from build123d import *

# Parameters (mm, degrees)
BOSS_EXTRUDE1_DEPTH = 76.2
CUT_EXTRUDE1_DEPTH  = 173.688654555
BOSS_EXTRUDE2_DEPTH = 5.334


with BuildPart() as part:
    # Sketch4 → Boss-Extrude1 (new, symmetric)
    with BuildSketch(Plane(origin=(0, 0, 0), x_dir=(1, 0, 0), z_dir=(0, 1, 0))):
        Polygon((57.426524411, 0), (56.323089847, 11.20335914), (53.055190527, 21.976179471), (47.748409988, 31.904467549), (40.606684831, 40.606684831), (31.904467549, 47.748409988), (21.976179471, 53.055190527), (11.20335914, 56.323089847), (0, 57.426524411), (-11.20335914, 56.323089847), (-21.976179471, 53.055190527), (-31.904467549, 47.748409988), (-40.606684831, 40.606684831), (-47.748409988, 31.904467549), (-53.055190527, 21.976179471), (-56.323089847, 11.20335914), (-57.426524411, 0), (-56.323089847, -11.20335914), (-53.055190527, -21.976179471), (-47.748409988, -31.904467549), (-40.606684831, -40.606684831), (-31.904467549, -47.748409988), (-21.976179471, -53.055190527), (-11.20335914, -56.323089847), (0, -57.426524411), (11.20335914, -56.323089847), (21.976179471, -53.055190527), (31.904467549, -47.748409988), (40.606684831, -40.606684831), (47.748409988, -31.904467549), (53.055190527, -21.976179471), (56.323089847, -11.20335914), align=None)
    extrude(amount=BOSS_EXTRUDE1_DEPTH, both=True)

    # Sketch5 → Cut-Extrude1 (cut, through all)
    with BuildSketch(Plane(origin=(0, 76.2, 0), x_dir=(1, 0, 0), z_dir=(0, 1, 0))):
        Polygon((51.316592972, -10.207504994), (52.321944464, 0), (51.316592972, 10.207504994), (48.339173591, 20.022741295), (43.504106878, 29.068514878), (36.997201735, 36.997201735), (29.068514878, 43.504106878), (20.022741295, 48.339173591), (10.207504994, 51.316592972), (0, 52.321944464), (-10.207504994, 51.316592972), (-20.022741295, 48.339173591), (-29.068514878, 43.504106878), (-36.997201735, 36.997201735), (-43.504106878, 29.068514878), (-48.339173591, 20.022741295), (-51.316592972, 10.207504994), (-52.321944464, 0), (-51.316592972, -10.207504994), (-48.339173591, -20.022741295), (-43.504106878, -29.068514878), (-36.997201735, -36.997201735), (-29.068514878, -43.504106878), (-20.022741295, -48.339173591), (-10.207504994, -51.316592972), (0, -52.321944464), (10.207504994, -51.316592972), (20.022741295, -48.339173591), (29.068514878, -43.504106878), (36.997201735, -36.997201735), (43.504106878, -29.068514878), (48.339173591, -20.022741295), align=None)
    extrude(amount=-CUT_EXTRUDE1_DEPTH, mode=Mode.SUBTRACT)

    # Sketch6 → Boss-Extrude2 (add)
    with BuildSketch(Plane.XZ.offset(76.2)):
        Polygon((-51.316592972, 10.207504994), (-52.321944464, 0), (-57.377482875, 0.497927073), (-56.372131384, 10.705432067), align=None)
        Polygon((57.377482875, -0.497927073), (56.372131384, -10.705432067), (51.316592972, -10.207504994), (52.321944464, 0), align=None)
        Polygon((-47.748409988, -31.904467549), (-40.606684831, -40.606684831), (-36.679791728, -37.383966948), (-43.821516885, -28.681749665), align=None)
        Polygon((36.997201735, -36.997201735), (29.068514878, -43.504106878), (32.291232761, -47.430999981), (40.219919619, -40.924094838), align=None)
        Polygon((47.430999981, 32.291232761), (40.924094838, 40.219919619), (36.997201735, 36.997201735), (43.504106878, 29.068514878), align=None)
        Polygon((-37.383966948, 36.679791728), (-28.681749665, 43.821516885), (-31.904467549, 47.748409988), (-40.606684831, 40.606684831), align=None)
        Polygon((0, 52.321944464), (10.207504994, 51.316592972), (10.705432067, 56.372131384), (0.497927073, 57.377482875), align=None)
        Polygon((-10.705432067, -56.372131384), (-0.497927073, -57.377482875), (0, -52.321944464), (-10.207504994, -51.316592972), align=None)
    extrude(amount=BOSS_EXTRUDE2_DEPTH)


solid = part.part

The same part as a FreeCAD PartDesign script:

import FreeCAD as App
import Part
import Sketcher
Q = App.Units.Quantity


def add_polygon(sketch, points):
    """Adds a closed chain of lines whose ends are joined by coincident constraints."""
    first, n = sketch.GeometryCount, len(points)
    for a, b in zip(points, points[1:] + points[:1]):
        sketch.addGeometry(Part.LineSegment(App.Vector(*a, 0), App.Vector(*b, 0)), False)
    for i in range(n):
        sketch.addConstraint(Sketcher.Constraint("Coincident", first + i, 2, first + (i + 1) % n, 1))

doc = App.newDocument("Part")
params = doc.addObject("Spreadsheet::Sheet", "Params")
for row, (alias, value) in enumerate([
    ("pad1_length", "6 in"),
    ("sketch3_length", "0.2 in"),
    ("pad2_length", "0.21 in"),
], start=1):
    params.set(f"A{row}", alias)
    params.set(f"B{row}", "=" + value)
    params.setAlias(f"B{row}", alias)

body = doc.addObject("PartDesign::Body", "Body")

# Sketch on XZ plane
sketch1 = doc.addObject("Sketcher::SketchObject", "Sketch")
body.addObject(sketch1)
sketch1.AttachmentSupport = (doc.XZ_Plane, [""])
sketch1.MapMode = "FlatFace"
add_polygon(sketch1, [(57, 0), (56, -11), (53, -22), (48, -32), (41, -41), (32, -48), (22, -53), (11, -56), (0, -57), (-11, -56), (-22, -53), (-32, -48), (-41, -41), (-48, -32), (-53, -22), (-56, -11), (-57, 0), (-56, 11), (-53, 22), (-48, 32), (-41, 41), (-32, 48), (-22, 53), (-11, 56), (0, 57), (11, 56), (22, 53), (32, 48), (41, 41), (48, 32), (53, 22), (56, 11)])  # lines 0-31
sketch1.addConstraint([
    Sketcher.Constraint("Symmetric", 0, 2, 16, 2, -1, 1),
    Sketcher.Constraint("Symmetric", 1, 2, 17, 2, -1, 1),
    Sketcher.Constraint("Symmetric", 2, 2, 18, 2, -1, 1),
    Sketcher.Constraint("Symmetric", 3, 2, 19, 2, -1, 1),
    Sketcher.Constraint("Symmetric", 4, 2, 20, 2, -1, 1),
    Sketcher.Constraint("Symmetric", 5, 2, 21, 2, -1, 1),
    Sketcher.Constraint("Symmetric", 6, 2, 22, 2, -1, 1),
    Sketcher.Constraint("Symmetric", 7, 2, 23, 2, -1, 1),
    Sketcher.Constraint("Symmetric", 8, 2, 24, 2, -1, 1),
    Sketcher.Constraint("Symmetric", 9, 2, 25, 2, -1, 1),
    Sketcher.Constraint("Symmetric", 10, 2, 26, 2, -1, 1),
    Sketcher.Constraint("Symmetric", 11, 2, 27, 2, -1, 1),
    Sketcher.Constraint("Symmetric", 12, 2, 28, 2, -1, 1),
    Sketcher.Constraint("Symmetric", 13, 2, 29, 2, -1, 1),
    Sketcher.Constraint("Symmetric", 14, 2, 30, 2, -1, 1),
    Sketcher.Constraint("Symmetric", 15, 2, 31, 2, -1, 1),
    Sketcher.Constraint("Symmetric", 6, 2, 8, 2, -2),
    Sketcher.Constraint("Symmetric", 5, 2, 9, 2, -2),
    Sketcher.Constraint("Symmetric", 4, 2, 10, 2, -2),
    Sketcher.Constraint("Symmetric", 3, 2, 11, 2, -2),
    Sketcher.Constraint("Symmetric", 2, 2, 12, 2, -2),
    Sketcher.Constraint("Symmetric", 1, 2, 13, 2, -2),
    Sketcher.Constraint("Symmetric", 0, 2, 14, 2, -2),
    Sketcher.Constraint("PointOnObject", 7, 2, -2),
    Sketcher.Constraint("PointOnObject", 15, 2, -1),
    Sketcher.Constraint("Perpendicular", 0, 8),
    Sketcher.Constraint("Perpendicular", 1, 9),
    Sketcher.Constraint("Perpendicular", 2, 10),
    Sketcher.Constraint("Perpendicular", 3, 11),
    Sketcher.Constraint("Equal", 0, 1),
    Sketcher.Constraint("Equal", 1, 2),
    Sketcher.Constraint("Equal", 2, 3),
    Sketcher.Constraint("Equal", 3, 4),
    Sketcher.Constraint("Equal", 4, 5),
    Sketcher.Constraint("Equal", 5, 6),
    Sketcher.Constraint("Equal", 6, 7),
    Sketcher.Constraint("DistanceX", 1, 2, 0, 2, 3.267899),
    Sketcher.Constraint("DistanceX", -1, 1, 0, 2, 56.32309),
    Sketcher.Constraint("DistanceY", 0, 2, -1, 1, 11.203359),
    Sketcher.Constraint("DistanceY", 1, 2, -1, 1, 21.976179),
    Sketcher.Constraint("DistanceX", -1, 1, 2, 2, 47.74841),
])
pad1 = doc.addObject("PartDesign::Pad", "Pad")
body.addObject(pad1)
pad1.Profile = sketch1
pad1.setExpression("Length", "Params.pad1_length")
pad1.Midplane = True

# Sketch on XZ plane
sketch2 = doc.addObject("Sketcher::SketchObject", "Sketch001")
body.addObject(sketch2)
sketch2.AttachmentSupport = (doc.XZ_Plane, [""])
sketch2.MapMode = "FlatFace"
sketch2.AttachmentOffset = App.Placement(App.Vector(0, 0, -3 * 25.4), App.Rotation())
add_polygon(sketch2, [(51, 10), (52, 0), (51, -10), (48, -20), (44, -29), (37, -37), (29, -44), (20, -48), (10, -51), (0, -52), (-10, -51), (-20, -48), (-29, -44), (-37, -37), (-44, -29), (-48, -20), (-51, -10), (-52, 0), (-51, 10), (-48, 20), (-44, 29), (-37, 37), (-29, 44), (-20, 48), (-10, 51), (0, 52), (10, 51), (20, 48), (29, 44), (37, 37), (44, 29), (48, 20)])  # lines 0-31
sketch2.addConstraint([
    Sketcher.Constraint("Symmetric", 0, 2, 16, 2, -1, 1),
    Sketcher.Constraint("Symmetric", 1, 2, 17, 2, -1, 1),
    Sketcher.Constraint("Symmetric", 2, 2, 18, 2, -1, 1),
    Sketcher.Constraint("Symmetric", 3, 2, 19, 2, -1, 1),
    Sketcher.Constraint("Symmetric", 4, 2, 20, 2, -1, 1),
    Sketcher.Constraint("Symmetric", 5, 2, 21, 2, -1, 1),
    Sketcher.Constraint("Symmetric", 6, 2, 22, 2, -1, 1),
    Sketcher.Constraint("Symmetric", 7, 2, 23, 2, -1, 1),
    Sketcher.Constraint("Symmetric", 8, 2, 24, 2, -1, 1),
    Sketcher.Constraint("Symmetric", 9, 2, 25, 2, -1, 1),
    Sketcher.Constraint("Symmetric", 10, 2, 26, 2, -1, 1),
    Sketcher.Constraint("Symmetric", 11, 2, 27, 2, -1, 1),
    Sketcher.Constraint("Symmetric", 12, 2, 28, 2, -1, 1),
    Sketcher.Constraint("Symmetric", 13, 2, 29, 2, -1, 1),
    Sketcher.Constraint("Symmetric", 14, 2, 30, 2, -1, 1),
    Sketcher.Constraint("Symmetric", 15, 2, 31, 2, -1, 1),
    Sketcher.Constraint("Symmetric", 7, 2, 9, 2, -2),
    Sketcher.Constraint("Symmetric", 6, 2, 10, 2, -2),
    Sketcher.Constraint("Symmetric", 5, 2, 11, 2, -2),
    Sketcher.Constraint("Symmetric", 4, 2, 12, 2, -2),
    Sketcher.Constraint("Symmetric", 3, 2, 13, 2, -2),
    Sketcher.Constraint("Symmetric", 2, 2, 14, 2, -2),
    Sketcher.Constraint("Symmetric", 1, 2, 15, 2, -2),
    Sketcher.Constraint("PointOnObject", 0, 2, -1),
    Sketcher.Constraint("PointOnObject", 8, 2, -2),
    Sketcher.Constraint("Perpendicular", 0, 8),
    Sketcher.Constraint("Perpendicular", 2, 10),
    Sketcher.Constraint("Perpendicular", 3, 11),
    Sketcher.Constraint("Perpendicular", 4, 12),
    Sketcher.Constraint("Equal", 1, 2),
    Sketcher.Constraint("Equal", 2, 3),
    Sketcher.Constraint("Equal", 3, 4),
    Sketcher.Constraint("Equal", 4, 5),
    Sketcher.Constraint("Equal", 5, 6),
    Sketcher.Constraint("Equal", 6, 7),
    Sketcher.Constraint("Equal", 7, 8),
    Sketcher.Constraint("DistanceX", 9, 2, 5, 2, Q("1.5463 in")),
    Sketcher.Constraint("DistanceX", -1, 1, 4, 2, 36.997202),
    Sketcher.Constraint("DistanceY", 5, 2, 1, 2, 33.296602),
    Sketcher.Constraint("DistanceY", 2, 2, -1, 1, 20.022741),
    Sketcher.Constraint("DistanceX", 1, 2, 0, 2, 1.005351),
])
pocket1 = doc.addObject("PartDesign::Pocket", "Pocket")
body.addObject(pocket1)
pocket1.Profile = sketch2
pocket1.Type = "ThroughAll"
pocket1.Reversed = True

# Sketch on XZ plane
sketch3 = doc.addObject("Sketcher::SketchObject", "Sketch002")
body.addObject(sketch3)
sketch3.AttachmentSupport = (doc.XZ_Plane, [""])
sketch3.MapMode = "FlatFace"
sketch3.AttachmentOffset = App.Placement(App.Vector(0, 0, 3 * 25.4), App.Rotation())
add_polygon(sketch3, [(-52, 0), (-51, 10), (-56, 11), (-57, 0)])  # lines 0-3
add_polygon(sketch3, [(56, -11), (57, 0), (52, 0), (51, -10)])  # lines 4-7
add_polygon(sketch3, [(-48, -32), (-41, -41), (-37, -37), (-44, -29)])  # lines 8-11
add_polygon(sketch3, [(37, -37), (29, -44), (32, -47), (40, -41)])  # lines 12-15
add_polygon(sketch3, [(47, 32), (41, 40), (37, 37), (44, 29)])  # lines 16-19
add_polygon(sketch3, [(-37, 37), (-29, 44), (-32, 48), (-41, 41)])  # lines 20-23
add_polygon(sketch3, [(0, 52), (10, 51), (11, 56), (0, 57)])  # lines 24-27
add_polygon(sketch3, [(-11, -56), (0, -57), (0, -52), (-10, -51)])  # lines 28-31
sketch3.addConstraint([
    Sketcher.Constraint("Symmetric", 2, 2, 4, 2, -1, 1),
    Sketcher.Constraint("Symmetric", 3, 2, 5, 2, -1, 1),
    Sketcher.Constraint("Symmetric", 0, 2, 6, 2, -1, 1),
    Sketcher.Constraint("Symmetric", 1, 2, 7, 2, -1, 1),
    Sketcher.Constraint("Symmetric", 26, 2, 28, 2, -1, 1),
    Sketcher.Constraint("Symmetric", 27, 2, 29, 2, -1, 1),
    Sketcher.Constraint("Symmetric", 24, 2, 30, 2, -1, 1),
    Sketcher.Constraint("Symmetric", 25, 2, 31, 2, -1, 1),
    Sketcher.Constraint("Symmetric", 15, 2, 17, 2, -1),
    Sketcher.Constraint("Symmetric", 8, 2, 22, 2, -1),
    Sketcher.Constraint("PointOnObject", 3, 2, -1),
    Sketcher.Constraint("PointOnObject", 27, 2, -2),
    Sketcher.Constraint("Perpendicular", 0, 1),
    Sketcher.Constraint("Perpendicular", 1, 2),
    Sketcher.Constraint("Perpendicular", 2, 3),
    Sketcher.Constraint("Perpendicular", 8, 9),
    Sketcher.Constraint("Perpendicular", 9, 10),
    Sketcher.Constraint("Perpendicular", 10, 11),
    Sketcher.Constraint("Parallel", 11, 12),
    Sketcher.Constraint("Perpendicular", 12, 13),
    Sketcher.Constraint("Perpendicular", 13, 14),
    Sketcher.Constraint("Perpendicular", 14, 15),
    Sketcher.Constraint("Parallel", 15, 16),
    Sketcher.Constraint("Perpendicular", 16, 17),
    Sketcher.Constraint("Perpendicular", 17, 18),
    Sketcher.Constraint("Perpendicular", 18, 19),
    Sketcher.Constraint("Parallel", 19, 20),
    Sketcher.Constraint("Perpendicular", 20, 21),
    Sketcher.Constraint("Perpendicular", 21, 22),
    Sketcher.Constraint("Perpendicular", 22, 23),
    Sketcher.Constraint("Parallel", 7, 24),
    Sketcher.Constraint("Perpendicular", 24, 25),
    Sketcher.Constraint("Perpendicular", 25, 26),
    Sketcher.Constraint("Perpendicular", 26, 27),
    Sketcher.Constraint("Equal", 7, 9),
    Sketcher.Constraint("Equal", 6, 12),
    Sketcher.Constraint("Equal", 11, 13),
    Sketcher.Constraint("Equal", 14, 16),
    Sketcher.Constraint("Equal", 15, 17),
    Sketcher.Constraint("Equal", 10, 20),
    Sketcher.Constraint("Equal", 19, 21),
    Sketcher.Constraint("Equal", 18, 24),
    Sketcher.Constraint("Equal", 23, 25),
    Sketcher.Constraint("Distance", 1, Q("0.2 in")),
    Sketcher.Constraint("DistanceY", 6, 2, 18, 2, Q("1.5463 in")),
    Sketcher.Constraint("DistanceX", 30, 2, 12, 2, Q("1.5463 in")),
    Sketcher.Constraint("DistanceY", 13, 2, -1, 1, 47.431),
    Sketcher.Constraint("DistanceX", -1, 1, 15, 2, 36.997202),
    Sketcher.Constraint("DistanceX", 2, 2, 8, 2, 16.770798),
    Sketcher.Constraint("DistanceX", 0, 2, 9, 2, 14.636801),
    Sketcher.Constraint("DistanceY", 9, 2, 1, 2, 48.089399),
    Sketcher.Constraint("DistanceY", 9, 2, 11, 2, 5.479499),
    Sketcher.Constraint("DistanceX", 13, 2, 7, 2, 24.080899),
    Sketcher.Constraint("DistanceY", 28, 2, 8, 2, 16.770798),
])
sketch3.setExpression("Constraints[75]", "Params.sketch3_length")
pad2 = doc.addObject("PartDesign::Pad", "Pad001")
body.addObject(pad2)
pad2.Profile = sketch3
pad2.setExpression("Length", "Params.pad2_length")

doc.recompute()
